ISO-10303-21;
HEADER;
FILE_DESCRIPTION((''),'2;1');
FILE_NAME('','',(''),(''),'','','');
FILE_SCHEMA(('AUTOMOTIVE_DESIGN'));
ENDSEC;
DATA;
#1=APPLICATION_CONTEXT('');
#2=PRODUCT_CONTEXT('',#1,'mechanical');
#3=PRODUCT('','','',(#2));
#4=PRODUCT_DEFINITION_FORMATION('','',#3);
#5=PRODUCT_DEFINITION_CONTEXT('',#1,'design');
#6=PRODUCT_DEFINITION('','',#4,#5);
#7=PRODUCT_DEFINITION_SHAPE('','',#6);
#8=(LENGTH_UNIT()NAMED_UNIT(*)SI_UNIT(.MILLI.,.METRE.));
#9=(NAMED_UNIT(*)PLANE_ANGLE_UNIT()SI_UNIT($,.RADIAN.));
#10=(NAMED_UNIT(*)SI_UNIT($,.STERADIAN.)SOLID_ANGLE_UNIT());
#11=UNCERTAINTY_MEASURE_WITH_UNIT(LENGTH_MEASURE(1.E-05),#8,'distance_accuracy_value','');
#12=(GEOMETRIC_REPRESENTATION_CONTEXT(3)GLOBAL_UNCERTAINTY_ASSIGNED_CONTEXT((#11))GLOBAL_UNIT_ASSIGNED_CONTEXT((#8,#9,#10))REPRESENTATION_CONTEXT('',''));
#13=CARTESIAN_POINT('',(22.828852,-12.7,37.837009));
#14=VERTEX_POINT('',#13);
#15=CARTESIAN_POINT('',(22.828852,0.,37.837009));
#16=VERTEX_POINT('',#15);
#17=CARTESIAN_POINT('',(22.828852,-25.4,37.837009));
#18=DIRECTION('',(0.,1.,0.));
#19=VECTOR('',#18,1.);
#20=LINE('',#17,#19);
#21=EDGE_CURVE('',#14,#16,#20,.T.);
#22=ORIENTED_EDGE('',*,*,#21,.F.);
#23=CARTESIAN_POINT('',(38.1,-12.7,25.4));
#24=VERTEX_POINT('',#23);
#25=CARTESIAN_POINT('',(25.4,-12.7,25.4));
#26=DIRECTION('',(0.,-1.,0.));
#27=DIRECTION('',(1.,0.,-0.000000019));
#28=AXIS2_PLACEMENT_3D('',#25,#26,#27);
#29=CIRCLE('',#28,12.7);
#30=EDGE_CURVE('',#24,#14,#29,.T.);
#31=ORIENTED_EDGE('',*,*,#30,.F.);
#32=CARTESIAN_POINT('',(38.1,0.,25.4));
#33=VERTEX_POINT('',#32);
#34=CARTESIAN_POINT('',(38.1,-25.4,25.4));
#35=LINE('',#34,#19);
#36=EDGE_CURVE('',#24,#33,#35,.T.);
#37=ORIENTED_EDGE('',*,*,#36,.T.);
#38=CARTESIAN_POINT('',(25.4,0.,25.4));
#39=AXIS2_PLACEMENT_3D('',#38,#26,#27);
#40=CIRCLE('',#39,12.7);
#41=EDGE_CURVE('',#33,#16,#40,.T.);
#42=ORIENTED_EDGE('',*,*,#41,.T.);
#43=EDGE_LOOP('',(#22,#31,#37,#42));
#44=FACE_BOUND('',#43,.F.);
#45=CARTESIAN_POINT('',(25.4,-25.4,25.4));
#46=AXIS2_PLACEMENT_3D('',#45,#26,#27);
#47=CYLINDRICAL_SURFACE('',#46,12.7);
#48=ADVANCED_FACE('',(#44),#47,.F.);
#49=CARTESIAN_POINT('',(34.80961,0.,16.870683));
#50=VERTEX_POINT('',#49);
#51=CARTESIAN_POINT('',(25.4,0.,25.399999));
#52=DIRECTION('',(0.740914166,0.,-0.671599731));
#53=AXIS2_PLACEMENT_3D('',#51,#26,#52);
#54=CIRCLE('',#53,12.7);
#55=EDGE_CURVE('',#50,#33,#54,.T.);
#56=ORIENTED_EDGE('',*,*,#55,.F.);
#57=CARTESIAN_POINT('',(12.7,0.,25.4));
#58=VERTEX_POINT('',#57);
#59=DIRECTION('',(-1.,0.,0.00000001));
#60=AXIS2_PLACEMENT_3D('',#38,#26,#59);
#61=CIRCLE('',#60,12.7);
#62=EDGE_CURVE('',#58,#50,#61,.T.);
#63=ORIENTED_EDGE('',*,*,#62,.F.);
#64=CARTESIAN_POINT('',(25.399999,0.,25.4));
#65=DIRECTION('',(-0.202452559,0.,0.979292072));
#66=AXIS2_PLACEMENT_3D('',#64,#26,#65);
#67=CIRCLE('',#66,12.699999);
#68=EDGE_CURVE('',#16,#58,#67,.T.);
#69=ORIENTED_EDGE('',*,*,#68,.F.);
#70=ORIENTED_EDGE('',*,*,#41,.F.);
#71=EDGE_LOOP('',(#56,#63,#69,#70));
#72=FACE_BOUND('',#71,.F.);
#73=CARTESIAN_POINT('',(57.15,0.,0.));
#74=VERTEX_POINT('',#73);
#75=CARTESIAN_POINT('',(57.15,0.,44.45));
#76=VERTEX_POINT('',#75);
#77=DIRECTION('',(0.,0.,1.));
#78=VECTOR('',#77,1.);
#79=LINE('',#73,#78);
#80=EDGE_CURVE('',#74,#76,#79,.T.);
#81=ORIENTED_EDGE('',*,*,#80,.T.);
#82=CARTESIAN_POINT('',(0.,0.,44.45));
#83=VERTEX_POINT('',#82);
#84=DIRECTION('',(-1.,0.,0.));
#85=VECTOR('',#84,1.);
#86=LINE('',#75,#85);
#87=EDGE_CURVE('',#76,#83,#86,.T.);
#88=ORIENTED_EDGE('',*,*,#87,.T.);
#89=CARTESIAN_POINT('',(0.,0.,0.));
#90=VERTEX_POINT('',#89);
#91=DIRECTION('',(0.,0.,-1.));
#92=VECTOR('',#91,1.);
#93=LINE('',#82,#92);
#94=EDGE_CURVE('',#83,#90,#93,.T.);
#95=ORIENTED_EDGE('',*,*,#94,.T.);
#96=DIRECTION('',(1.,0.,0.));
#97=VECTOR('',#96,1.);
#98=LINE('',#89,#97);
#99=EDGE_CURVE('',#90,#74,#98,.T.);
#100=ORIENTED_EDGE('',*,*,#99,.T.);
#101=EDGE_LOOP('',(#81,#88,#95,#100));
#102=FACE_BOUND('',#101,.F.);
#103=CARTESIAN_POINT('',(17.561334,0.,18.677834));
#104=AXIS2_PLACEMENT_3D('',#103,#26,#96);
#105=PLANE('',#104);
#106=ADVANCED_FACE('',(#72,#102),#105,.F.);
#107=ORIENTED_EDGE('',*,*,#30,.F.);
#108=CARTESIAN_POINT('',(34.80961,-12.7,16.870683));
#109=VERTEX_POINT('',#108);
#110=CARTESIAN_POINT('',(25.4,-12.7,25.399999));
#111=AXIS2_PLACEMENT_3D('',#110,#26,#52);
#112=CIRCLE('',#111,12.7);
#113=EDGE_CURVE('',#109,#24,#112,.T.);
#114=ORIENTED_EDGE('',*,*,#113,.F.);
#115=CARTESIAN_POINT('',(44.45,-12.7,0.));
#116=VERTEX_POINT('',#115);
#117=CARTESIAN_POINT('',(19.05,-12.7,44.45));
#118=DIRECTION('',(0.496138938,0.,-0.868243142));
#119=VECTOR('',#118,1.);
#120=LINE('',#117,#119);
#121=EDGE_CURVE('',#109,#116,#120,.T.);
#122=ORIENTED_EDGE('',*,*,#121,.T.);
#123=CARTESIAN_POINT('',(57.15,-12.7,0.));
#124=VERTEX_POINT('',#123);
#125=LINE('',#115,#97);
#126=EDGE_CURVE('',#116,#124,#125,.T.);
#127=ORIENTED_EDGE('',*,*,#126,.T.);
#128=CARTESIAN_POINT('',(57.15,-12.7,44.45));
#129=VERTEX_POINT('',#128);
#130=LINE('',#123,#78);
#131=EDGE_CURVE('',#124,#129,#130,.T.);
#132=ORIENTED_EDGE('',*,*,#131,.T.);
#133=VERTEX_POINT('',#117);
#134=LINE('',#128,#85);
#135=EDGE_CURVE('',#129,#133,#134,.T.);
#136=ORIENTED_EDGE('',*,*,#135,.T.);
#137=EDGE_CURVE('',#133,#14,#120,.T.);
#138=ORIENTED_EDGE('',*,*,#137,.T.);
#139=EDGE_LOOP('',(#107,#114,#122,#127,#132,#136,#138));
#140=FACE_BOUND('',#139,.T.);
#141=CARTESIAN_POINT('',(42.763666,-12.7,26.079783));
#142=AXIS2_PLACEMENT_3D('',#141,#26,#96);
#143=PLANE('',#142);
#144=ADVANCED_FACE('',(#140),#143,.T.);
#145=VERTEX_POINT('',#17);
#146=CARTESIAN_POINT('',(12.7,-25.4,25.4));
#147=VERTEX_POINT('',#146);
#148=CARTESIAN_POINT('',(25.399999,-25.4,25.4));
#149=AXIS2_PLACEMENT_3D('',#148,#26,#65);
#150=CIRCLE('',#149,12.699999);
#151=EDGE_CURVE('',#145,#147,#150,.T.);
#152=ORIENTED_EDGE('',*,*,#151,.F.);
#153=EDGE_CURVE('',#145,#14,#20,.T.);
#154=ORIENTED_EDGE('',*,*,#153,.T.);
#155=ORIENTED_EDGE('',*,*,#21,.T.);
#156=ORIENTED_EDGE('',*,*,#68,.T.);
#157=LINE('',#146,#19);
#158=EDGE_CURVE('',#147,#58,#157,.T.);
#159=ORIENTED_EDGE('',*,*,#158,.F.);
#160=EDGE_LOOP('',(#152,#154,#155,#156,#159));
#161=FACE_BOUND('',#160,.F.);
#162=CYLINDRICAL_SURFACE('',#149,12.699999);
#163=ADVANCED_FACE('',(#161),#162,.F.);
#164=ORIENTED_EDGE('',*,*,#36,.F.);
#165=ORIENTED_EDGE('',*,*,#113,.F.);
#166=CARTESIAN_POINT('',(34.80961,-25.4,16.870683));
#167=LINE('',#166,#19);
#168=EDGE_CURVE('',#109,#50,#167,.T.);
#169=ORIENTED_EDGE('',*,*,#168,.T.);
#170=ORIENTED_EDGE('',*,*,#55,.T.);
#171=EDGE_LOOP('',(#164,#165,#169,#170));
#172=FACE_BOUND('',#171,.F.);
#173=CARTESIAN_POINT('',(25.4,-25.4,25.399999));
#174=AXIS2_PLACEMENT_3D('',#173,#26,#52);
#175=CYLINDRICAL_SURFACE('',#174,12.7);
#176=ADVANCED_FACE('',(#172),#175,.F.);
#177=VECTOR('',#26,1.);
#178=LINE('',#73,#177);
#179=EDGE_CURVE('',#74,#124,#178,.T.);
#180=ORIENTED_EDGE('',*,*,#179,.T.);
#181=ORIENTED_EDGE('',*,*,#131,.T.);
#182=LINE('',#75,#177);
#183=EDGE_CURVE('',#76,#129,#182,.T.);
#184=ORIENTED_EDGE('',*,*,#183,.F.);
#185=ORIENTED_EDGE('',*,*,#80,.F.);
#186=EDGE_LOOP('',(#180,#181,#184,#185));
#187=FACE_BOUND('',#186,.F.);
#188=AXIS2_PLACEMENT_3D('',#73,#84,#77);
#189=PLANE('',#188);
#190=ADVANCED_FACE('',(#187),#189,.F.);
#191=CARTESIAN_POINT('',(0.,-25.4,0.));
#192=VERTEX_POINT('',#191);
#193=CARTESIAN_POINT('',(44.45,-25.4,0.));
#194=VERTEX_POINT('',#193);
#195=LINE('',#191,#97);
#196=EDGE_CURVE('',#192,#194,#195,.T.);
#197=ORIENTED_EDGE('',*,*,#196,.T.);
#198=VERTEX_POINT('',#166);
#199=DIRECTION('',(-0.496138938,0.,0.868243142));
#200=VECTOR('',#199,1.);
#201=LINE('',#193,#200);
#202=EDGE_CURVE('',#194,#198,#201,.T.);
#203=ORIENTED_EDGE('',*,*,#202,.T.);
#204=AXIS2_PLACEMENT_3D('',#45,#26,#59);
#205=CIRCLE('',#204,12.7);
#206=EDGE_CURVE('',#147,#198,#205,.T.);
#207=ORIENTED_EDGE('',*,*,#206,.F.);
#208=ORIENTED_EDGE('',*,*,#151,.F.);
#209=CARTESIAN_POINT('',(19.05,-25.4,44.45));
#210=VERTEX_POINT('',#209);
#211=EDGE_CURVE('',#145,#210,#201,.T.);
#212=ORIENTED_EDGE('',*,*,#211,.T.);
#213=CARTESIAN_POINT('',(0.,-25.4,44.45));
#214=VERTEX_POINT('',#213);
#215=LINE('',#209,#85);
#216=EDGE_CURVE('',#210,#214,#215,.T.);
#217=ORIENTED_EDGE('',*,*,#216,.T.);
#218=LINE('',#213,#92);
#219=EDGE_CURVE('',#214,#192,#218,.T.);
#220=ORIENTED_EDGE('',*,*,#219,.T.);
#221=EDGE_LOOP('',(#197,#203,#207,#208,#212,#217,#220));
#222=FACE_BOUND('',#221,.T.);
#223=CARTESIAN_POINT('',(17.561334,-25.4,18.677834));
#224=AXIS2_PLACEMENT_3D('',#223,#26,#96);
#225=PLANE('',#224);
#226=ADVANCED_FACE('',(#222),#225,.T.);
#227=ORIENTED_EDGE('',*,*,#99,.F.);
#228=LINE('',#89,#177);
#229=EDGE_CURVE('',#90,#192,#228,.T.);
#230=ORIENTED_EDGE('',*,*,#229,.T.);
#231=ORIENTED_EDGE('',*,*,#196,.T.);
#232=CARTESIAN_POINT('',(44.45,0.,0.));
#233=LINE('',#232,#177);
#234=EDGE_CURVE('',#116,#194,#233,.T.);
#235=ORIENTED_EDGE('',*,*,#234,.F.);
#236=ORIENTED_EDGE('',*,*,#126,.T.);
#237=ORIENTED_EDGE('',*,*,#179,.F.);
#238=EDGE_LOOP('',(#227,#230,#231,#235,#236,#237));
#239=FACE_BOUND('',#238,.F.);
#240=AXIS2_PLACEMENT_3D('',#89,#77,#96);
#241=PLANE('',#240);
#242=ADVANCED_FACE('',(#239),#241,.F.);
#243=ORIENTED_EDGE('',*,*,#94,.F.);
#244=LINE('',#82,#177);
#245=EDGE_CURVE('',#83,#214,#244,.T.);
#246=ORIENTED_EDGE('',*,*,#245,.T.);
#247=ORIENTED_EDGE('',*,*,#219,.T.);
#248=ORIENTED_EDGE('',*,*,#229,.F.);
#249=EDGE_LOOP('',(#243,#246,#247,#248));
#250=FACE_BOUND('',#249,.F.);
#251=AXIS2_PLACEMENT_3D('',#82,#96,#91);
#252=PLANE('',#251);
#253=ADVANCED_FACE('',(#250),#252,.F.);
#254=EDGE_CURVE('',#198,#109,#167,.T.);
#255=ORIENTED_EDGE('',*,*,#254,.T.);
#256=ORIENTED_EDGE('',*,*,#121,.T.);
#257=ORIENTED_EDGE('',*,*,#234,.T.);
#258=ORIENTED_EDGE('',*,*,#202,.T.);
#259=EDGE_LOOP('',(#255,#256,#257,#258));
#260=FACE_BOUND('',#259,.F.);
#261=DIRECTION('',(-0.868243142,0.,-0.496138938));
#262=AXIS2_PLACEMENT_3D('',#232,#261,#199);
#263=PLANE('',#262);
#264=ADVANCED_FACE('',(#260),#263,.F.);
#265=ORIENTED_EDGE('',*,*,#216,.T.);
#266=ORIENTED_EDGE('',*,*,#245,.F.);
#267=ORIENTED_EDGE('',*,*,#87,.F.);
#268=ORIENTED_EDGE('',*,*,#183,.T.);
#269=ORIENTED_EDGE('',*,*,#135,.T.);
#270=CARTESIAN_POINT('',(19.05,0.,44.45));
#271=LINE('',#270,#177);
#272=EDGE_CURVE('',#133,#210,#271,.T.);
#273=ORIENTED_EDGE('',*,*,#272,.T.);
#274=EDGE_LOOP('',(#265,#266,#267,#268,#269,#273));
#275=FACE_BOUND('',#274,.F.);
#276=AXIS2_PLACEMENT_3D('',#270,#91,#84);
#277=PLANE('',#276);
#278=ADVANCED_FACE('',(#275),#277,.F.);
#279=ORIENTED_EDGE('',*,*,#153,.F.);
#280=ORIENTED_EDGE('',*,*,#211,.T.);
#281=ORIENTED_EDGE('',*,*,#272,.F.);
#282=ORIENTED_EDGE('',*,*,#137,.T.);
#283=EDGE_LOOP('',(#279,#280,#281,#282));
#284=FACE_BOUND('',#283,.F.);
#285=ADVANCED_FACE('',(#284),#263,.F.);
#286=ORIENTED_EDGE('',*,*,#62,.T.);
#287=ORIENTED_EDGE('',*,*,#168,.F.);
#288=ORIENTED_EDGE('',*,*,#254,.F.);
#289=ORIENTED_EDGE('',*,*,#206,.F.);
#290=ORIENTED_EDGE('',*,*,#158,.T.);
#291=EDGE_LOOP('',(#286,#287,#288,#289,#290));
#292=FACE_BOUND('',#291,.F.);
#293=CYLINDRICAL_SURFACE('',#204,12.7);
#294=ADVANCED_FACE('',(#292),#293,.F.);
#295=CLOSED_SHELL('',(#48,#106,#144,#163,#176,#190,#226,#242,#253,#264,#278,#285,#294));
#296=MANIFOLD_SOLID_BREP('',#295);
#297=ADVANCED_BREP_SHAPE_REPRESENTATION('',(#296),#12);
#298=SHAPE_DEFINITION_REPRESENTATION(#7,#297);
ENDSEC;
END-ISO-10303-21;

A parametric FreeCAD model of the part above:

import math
import FreeCAD as App
import Part
import Sketcher
from FreeCAD import Vector
Q = App.Units.Quantity

doc = App.newDocument("Part")
params = doc.addObject("Spreadsheet::Sheet", "Params")
for row, (alias, value) in enumerate([
    ("sketch1_width", "0.5 in"),
    ("sketch1_width2", "1.5 in"),
    ("sketch1_height", "1.75 in"),
    ("pad1_length", "0.5 in"),
    ("sketch2_width", "1.75 in"),
    ("pad2_length", "1 in"),
    ("sketch3_radius", "0.5 in"),
    ("pocket1_length", "2 in"),
], start=1):
    params.set(f"A{row}", alias)
    params.set(f"B{row}", "=" + value)
    params.setAlias(f"B{row}", alias)

body = doc.addObject("PartDesign::Body", "Body")

# Sketch on XZ plane
sketch1 = doc.addObject("Sketcher::SketchObject", "Sketch")
body.addObject(sketch1)
sketch1.AttachmentSupport = (doc.XZ_Plane, [""])
sketch1.MapMode = "FlatFace"
sketch1.addGeometry(Part.LineSegment(Vector(19.05, 44.45, 0), Vector(44.45, 0, 0)), False)
sketch1.addGeometry(Part.LineSegment(Vector(44.45, 0, 0), Vector(57.15, 0, 0)), False)
sketch1.addGeometry(Part.LineSegment(Vector(57.15, 0, 0), Vector(57.15, 44.45, 0)), False)
sketch1.addGeometry(Part.LineSegment(Vector(57.15, 44.45, 0), Vector(19.05, 44.45, 0)), False)
sketch1.addConstraint(Sketcher.Constraint("Coincident", 0, 2, 1, 1))
sketch1.addConstraint(Sketcher.Constraint("Coincident", 1, 2, 2, 1))
sketch1.addConstraint(Sketcher.Constraint("Coincident", 2, 2, 3, 1))
sketch1.addConstraint(Sketcher.Constraint("Coincident", 3, 2, 0, 1))
sketch1.addConstraint(Sketcher.Constraint("Horizontal", 1))
sketch1.addConstraint(Sketcher.Constraint("Vertical", 2))
sketch1.addConstraint(Sketcher.Constraint("Horizontal", 3))
sketch1.addConstraint(Sketcher.Constraint("PointOnObject", 0, 2, -1))
sketch1.addConstraint(Sketcher.Constraint("DistanceX", 1, 1, 1, 2, Q("0.5 in")))
sketch1.addConstraint(Sketcher.Constraint("DistanceX", 3, 2, 3, 1, Q("1.5 in")))
sketch1.addConstraint(Sketcher.Constraint("DistanceY", 2, 1, 2, 2, Q("1.75 in")))
sketch1.addConstraint(Sketcher.Constraint("DistanceX", -1, 1, 0, 2, Q("1.75 in")))
sketch1.setExpression("Constraints[8]", "Params.sketch1_width")
sketch1.setExpression("Constraints[9]", "Params.sketch1_width2")
sketch1.setExpression("Constraints[10]", "Params.sketch1_height")
pad1 = doc.addObject("PartDesign::Pad", "Pad")
body.addObject(pad1)
pad1.Profile = sketch1
pad1.setExpression("Length", "Params.pad1_length")

# Sketch on XZ plane
sketch2 = doc.addObject("Sketcher::SketchObject", "Sketch001")
body.addObject(sketch2)
sketch2.AttachmentSupport = (doc.XZ_Plane, [""])
sketch2.MapMode = "FlatFace"
sketch2.addGeometry(Part.LineSegment(Vector(0, 44.45, 0), Vector(0, 0, 0)), False)
sketch2.addGeometry(Part.LineSegment(Vector(0, 0, 0), Vector(44.45, 0, 0)), False)
sketch2.addGeometry(Part.LineSegment(Vector(44.45, 0, 0), Vector(19.05, 44.45, 0)), False)
sketch2.addGeometry(Part.LineSegment(Vector(19.05, 44.45, 0), Vector(0, 44.45, 0)), False)
sketch2.addConstraint(Sketcher.Constraint("Coincident", 0, 2, 1, 1))
sketch2.addConstraint(Sketcher.Constraint("Coincident", 1, 2, 2, 1))
sketch2.addConstraint(Sketcher.Constraint("Coincident", 2, 2, 3, 1))
sketch2.addConstraint(Sketcher.Constraint("Coincident", 3, 2, 0, 1))
sketch2.addConstraint(Sketcher.Constraint("Vertical", 0))
sketch2.addConstraint(Sketcher.Constraint("Horizontal", 1))
sketch2.addConstraint(Sketcher.Constraint("Horizontal", 3))
sketch2.addConstraint(Sketcher.Constraint("Coincident", 0, 2, -1, 1))
sketch2.addConstraint(Sketcher.Constraint("Equal", 1, 0))
sketch2.addConstraint(Sketcher.Constraint("DistanceX", 2, 2, 1, 2, Q("1 in")))
sketch2.addConstraint(Sketcher.Constraint("DistanceX", 1, 1, 1, 2, Q("1.75 in")))
sketch2.setExpression("Constraints[10]", "Params.sketch2_width")
pad2 = doc.addObject("PartDesign::Pad", "Pad001")
body.addObject(pad2)
pad2.Profile = sketch2
pad2.setExpression("Length", "Params.pad2_length")

# Sketch on XZ plane
sketch3 = doc.addObject("Sketcher::SketchObject", "Sketch002")
body.addObject(sketch3)
sketch3.AttachmentSupport = (doc.XZ_Plane, [""])
sketch3.MapMode = "FlatFace"
sketch3.AttachmentOffset = App.Placement(Vector(0, 0, 1 * 25.4), App.Rotation())
sketch3.addGeometry(Part.ArcOfCircle(Part.Circle(Vector(25.4, 25.399999, 0), Vector(0, 0, 1), 12.7), math.radians(-42.190653), math.radians(0.000003)), False)
sketch3.addGeometry(Part.ArcOfCircle(Part.Circle(Vector(25.4, 25.4, 0), Vector(0, 0, 1), 12.7), math.radians(-0.000001), math.radians(101.680419)), False)
sketch3.addGeometry(Part.ArcOfCircle(Part.Circle(Vector(25.399999, 25.4, 0), Vector(0, 0, 1), 12.699999), math.radians(101.680415), math.radians(180.000001)), False)
sketch3.addGeometry(Part.ArcOfCircle(Part.Circle(Vector(25.4, 25.4, 0), Vector(0, 0, 1), 12.7), math.radians(179.999999), math.radians(317.809346)), False)
sketch3.addConstraint(Sketcher.Constraint("Tangent", 0, 2, 1, 1))
sketch3.addConstraint(Sketcher.Constraint("Tangent", 1, 2, 2, 1))
sketch3.addConstraint(Sketcher.Constraint("Tangent", 2, 2, 3, 1))
sketch3.addConstraint(Sketcher.Constraint("Tangent", 3, 2, 0, 1))
sketch3.addConstraint(Sketcher.Constraint("Equal", 0, 1))
sketch3.addConstraint(Sketcher.Constraint("Horizontal", 3, 3, 0, 2))
sketch3.addConstraint(Sketcher.Constraint("Horizontal", 0, 2, 2, 2))
sketch3.addConstraint(Sketcher.Constraint("Radius", 0, Q("0.5 in")))
sketch3.addConstraint(Sketcher.Constraint("DistanceX", -1, 1, 0, 3, Q("1 in")))
sketch3.addConstraint(Sketcher.Constraint("DistanceY", -1, 1, 0, 3, Q("1 in")))
sketch3.addConstraint(Sketcher.Constraint("DistanceY", -1, 1, 3, 2, Q("0.6642001 in")))
sketch3.addConstraint(Sketcher.Constraint("DistanceY", -1, 1, 1, 2, 37.837009))
sketch3.setExpression("Constraints[7]", "Params.sketch3_radius")
pocket1 = doc.addObject("PartDesign::Pocket", "Pocket")
body.addObject(pocket1)
pocket1.Profile = sketch3
pocket1.setExpression("Length", "Params.pocket1_length")

doc.recompute()
